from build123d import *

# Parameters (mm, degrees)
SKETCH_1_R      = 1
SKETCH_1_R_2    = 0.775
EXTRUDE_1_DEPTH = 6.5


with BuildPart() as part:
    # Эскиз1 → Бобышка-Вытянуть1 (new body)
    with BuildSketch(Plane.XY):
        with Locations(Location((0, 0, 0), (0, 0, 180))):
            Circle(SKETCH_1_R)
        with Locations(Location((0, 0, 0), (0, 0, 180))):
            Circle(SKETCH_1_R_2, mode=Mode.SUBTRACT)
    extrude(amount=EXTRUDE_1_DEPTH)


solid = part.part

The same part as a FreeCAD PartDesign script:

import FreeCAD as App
import Part
import Sketcher

doc = App.newDocument("Part")
body = doc.addObject("PartDesign::Body", "Body")

# Sketch on XY plane
sketch1 = body.newObject("Sketcher::SketchObject", "Sketch")
sketch1.AttachmentSupport = (doc.getObject("XY_Plane"), [""])
sketch1.MapMode = "FlatFace"
sketch1.addGeometry([
    Part.Circle(App.Vector(0, 0, 0), App.Vector(0, 0, 1), 1),
    Part.Circle(App.Vector(0, 0, 0), App.Vector(0, 0, 1), 0.775),
], False)
sketch1.addConstraint([
    Sketcher.Constraint("Coincident", 0, 3, -1, 1),
    Sketcher.Constraint("Coincident", 1, 3, -1, 1),
    Sketcher.Constraint("Diameter", 0, 2.0),
    Sketcher.Constraint("Diameter", 1, 1.55),
])
pad1 = body.newObject("PartDesign::Pad", "Pad")
pad1.Profile = sketch1
pad1.Length = 6.5

doc.recompute()
